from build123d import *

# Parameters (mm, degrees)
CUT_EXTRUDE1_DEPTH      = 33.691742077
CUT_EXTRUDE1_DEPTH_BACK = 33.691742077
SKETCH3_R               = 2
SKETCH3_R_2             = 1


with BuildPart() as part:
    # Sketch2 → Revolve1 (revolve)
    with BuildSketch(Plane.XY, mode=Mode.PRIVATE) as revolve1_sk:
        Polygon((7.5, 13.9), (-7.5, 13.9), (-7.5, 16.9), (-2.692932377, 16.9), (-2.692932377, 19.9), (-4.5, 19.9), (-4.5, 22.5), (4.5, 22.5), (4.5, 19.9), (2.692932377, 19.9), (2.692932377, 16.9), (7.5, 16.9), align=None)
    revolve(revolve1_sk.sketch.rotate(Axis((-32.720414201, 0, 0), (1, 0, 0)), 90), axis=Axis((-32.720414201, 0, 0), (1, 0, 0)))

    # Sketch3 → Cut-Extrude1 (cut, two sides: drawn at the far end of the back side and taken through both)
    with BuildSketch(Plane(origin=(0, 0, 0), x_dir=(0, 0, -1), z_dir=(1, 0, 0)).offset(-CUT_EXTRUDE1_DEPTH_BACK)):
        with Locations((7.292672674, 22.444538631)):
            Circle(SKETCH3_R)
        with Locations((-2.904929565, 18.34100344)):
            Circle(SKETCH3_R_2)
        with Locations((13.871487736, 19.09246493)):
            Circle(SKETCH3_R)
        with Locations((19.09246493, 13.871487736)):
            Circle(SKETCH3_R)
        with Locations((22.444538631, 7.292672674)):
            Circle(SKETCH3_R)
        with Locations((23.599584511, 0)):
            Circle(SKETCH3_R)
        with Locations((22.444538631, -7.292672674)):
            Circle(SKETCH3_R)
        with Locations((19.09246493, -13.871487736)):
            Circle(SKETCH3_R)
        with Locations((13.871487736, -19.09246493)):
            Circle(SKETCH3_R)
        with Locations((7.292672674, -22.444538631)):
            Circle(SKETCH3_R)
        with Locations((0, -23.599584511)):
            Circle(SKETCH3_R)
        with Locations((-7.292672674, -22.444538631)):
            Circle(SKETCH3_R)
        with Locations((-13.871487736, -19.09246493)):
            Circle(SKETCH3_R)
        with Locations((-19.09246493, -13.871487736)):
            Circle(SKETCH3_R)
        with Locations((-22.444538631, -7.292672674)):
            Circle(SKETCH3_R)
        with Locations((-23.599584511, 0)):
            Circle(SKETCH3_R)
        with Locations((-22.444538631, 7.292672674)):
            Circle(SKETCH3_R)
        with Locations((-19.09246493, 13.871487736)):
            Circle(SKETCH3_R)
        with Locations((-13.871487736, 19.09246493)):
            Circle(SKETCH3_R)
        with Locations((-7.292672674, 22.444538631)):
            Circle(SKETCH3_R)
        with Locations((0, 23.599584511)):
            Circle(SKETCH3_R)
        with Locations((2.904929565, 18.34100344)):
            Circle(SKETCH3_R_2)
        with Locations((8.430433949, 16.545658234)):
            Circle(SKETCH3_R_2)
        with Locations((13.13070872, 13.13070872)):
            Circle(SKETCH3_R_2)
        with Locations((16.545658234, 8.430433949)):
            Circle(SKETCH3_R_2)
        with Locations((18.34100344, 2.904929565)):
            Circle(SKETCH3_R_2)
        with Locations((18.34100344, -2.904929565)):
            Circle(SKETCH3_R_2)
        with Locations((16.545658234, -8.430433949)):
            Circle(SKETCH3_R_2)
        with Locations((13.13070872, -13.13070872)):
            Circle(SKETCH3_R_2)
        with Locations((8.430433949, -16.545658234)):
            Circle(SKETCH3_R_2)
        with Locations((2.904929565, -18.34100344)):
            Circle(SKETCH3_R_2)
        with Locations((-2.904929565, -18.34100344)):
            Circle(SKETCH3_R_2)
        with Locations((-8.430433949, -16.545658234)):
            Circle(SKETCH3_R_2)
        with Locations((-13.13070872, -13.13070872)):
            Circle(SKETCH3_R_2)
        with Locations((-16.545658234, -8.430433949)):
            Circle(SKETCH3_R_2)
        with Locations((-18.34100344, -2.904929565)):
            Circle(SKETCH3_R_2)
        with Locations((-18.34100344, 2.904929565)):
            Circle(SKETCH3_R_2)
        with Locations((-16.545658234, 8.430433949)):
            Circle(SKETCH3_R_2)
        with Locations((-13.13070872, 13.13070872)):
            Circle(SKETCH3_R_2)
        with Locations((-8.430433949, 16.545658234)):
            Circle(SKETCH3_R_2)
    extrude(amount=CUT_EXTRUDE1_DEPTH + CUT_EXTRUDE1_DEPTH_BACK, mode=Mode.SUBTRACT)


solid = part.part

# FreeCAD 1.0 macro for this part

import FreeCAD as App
import Part
import Sketcher
from FreeCAD import Vector


def add_polygon(sketch, points):
    """Adds a closed chain of lines whose ends are joined by coincident constraints."""
    first, n = sketch.GeometryCount, len(points)
    for a, b in zip(points, points[1:] + points[:1]):
        sketch.addGeometry(Part.LineSegment(App.Vector(*a, 0), App.Vector(*b, 0)), False)
    for i in range(n):
        sketch.addConstraint(Sketcher.Constraint("Coincident", first + i, 2, first + (i + 1) % n, 1))

doc = App.newDocument("Part")
params = doc.addObject("Spreadsheet::Sheet", "Params")
for row, (alias, value) in enumerate([
    ("sketch1_width", "15 mm"),
    ("sketch1_width2", "9 mm"),
    ("sketch1_height", "3 mm"),
    ("sketch1_height2", "2.6 mm"),
    ("revolution_angle", "360 deg"),
    ("sketch2_diameter", "4 mm"),
    ("sketch2_diameter2", "2 mm"),
], start=1):
    params.set(f"A{row}", alias)
    params.set(f"B{row}", "=" + value)
    params.setAlias(f"B{row}", alias)

body = doc.addObject("PartDesign::Body", "Body")

sketch1 = doc.addObject("Sketcher::SketchObject", "Sketch")
body.addObject(sketch1)
sketch1.AttachmentSupport = (doc.XY_Plane, [""])
sketch1.MapMode = "FlatFace"
add_polygon(sketch1, [(-7.5, 13.9), (7.5, 13.9), (7.5, 16.9), (2.7, 16.9), (2.7, 19.9), (4.5, 19.9), (4.5, 22.5), (-4.5, 22.5), (-4.5, 19.9), (-2.7, 19.9), (-2.7, 16.9), (-7.5, 16.9)])
sketch1.addConstraint([
    Sketcher.Constraint("Horizontal", 0),
    Sketcher.Constraint("Vertical", 1),
    Sketcher.Constraint("Horizontal", 2),
    Sketcher.Constraint("Vertical", 3),
    Sketcher.Constraint("Horizontal", 4),
    Sketcher.Constraint("Vertical", 5),
    Sketcher.Constraint("Horizontal", 6),
    Sketcher.Constraint("Vertical", 7),
    Sketcher.Constraint("Horizontal", 8),
    Sketcher.Constraint("Vertical", 9),
    Sketcher.Constraint("Horizontal", 10),
    Sketcher.Constraint("Vertical", 11),
    Sketcher.Constraint("Symmetric", 4, 2, 7, 2, -2),
    Sketcher.Constraint("Symmetric", 2, 2, 9, 2, -2),
    Sketcher.Constraint("Equal", 2, 10),
    Sketcher.Constraint("Equal", 1, 3),
    Sketcher.Constraint("DistanceX", 0, 1, 0, 2, 15.0),
    Sketcher.Constraint("DistanceX", 6, 2, 6, 1, 9.0),
    Sketcher.Constraint("DistanceY", 1, 1, 1, 2, 3.0),
    Sketcher.Constraint("DistanceY", 5, 1, 5, 2, 2.6),
    Sketcher.Constraint("DistanceY", -1, 1, 0, 2, 13.9),
    Sketcher.Constraint("DistanceX", 2, 2, 2, 1, 4.807068),
])
sketch1.setExpression("Constraints[28]", "Params.sketch1_width")
sketch1.setExpression("Constraints[29]", "Params.sketch1_width2")
sketch1.setExpression("Constraints[30]", "Params.sketch1_height")
sketch1.setExpression("Constraints[31]", "Params.sketch1_height2")
revolution = doc.addObject("PartDesign::Revolution", "Revolution")
body.addObject(revolution)
revolution.Profile = sketch1
revolution.ReferenceAxis = (sketch1, ["H_Axis"])
revolution.setExpression("Angle", "Params.revolution_angle")

sketch2 = doc.addObject("Sketcher::SketchObject", "Sketch001")
body.addObject(sketch2)
sketch2.AttachmentSupport = (doc.YZ_Plane, [""])
sketch2.MapMode = "FlatFace"
sketch2.addGeometry([
    Part.Circle(Vector(22.4, -7.3, 0), Vector(0, 0, 1), 2),
    Part.Circle(Vector(18.3, 2.9, 0), Vector(0, 0, 1), 1),
    Part.Circle(Vector(19.1, -13.9, 0), Vector(0, 0, 1), 2),
    Part.Circle(Vector(13.9, -19.1, 0), Vector(0, 0, 1), 2),
    Part.Circle(Vector(7.3, -22.4, 0), Vector(0, 0, 1), 2),
    Part.Circle(Vector(0, -23.6, 0), Vector(0, 0, 1), 2),
    Part.Circle(Vector(-7.3, -22.4, 0), Vector(0, 0, 1), 2),
    Part.Circle(Vector(-13.9, -19.1, 0), Vector(0, 0, 1), 2),
    Part.Circle(Vector(-19.1, -13.9, 0), Vector(0, 0, 1), 2),
    Part.Circle(Vector(-22.4, -7.3, 0), Vector(0, 0, 1), 2),
    Part.Circle(Vector(-23.6, 0, 0), Vector(0, 0, 1), 2),
    Part.Circle(Vector(-22.4, 7.3, 0), Vector(0, 0, 1), 2),
    Part.Circle(Vector(-19.1, 13.9, 0), Vector(0, 0, 1), 2),
    Part.Circle(Vector(-13.9, 19.1, 0), Vector(0, 0, 1), 2),
    Part.Circle(Vector(-7.3, 22.4, 0), Vector(0, 0, 1), 2),
    Part.Circle(Vector(0, 23.6, 0), Vector(0, 0, 1), 2),
    Part.Circle(Vector(7.3, 22.4, 0), Vector(0, 0, 1), 2),
    Part.Circle(Vector(13.9, 19.1, 0), Vector(0, 0, 1), 2),
    Part.Circle(Vector(19.1, 13.9, 0), Vector(0, 0, 1), 2),
    Part.Circle(Vector(22.4, 7.3, 0), Vector(0, 0, 1), 2),
    Part.Circle(Vector(23.6, 0, 0), Vector(0, 0, 1), 2),
    Part.Circle(Vector(18.3, -2.9, 0), Vector(0, 0, 1), 1),
    Part.Circle(Vector(16.5, -8.4, 0), Vector(0, 0, 1), 1),
    Part.Circle(Vector(13.1, -13.1, 0), Vector(0, 0, 1), 1),
    Part.Circle(Vector(8.4, -16.5, 0), Vector(0, 0, 1), 1),
    Part.Circle(Vector(2.9, -18.3, 0), Vector(0, 0, 1), 1),
    Part.Circle(Vector(-2.9, -18.3, 0), Vector(0, 0, 1), 1),
    Part.Circle(Vector(-8.4, -16.5, 0), Vector(0, 0, 1), 1),
    Part.Circle(Vector(-13.1, -13.1, 0), Vector(0, 0, 1), 1),
    Part.Circle(Vector(-16.5, -8.4, 0), Vector(0, 0, 1), 1),
    Part.Circle(Vector(-18.3, -2.9, 0), Vector(0, 0, 1), 1),
    Part.Circle(Vector(-18.3, 2.9, 0), Vector(0, 0, 1), 1),
    Part.Circle(Vector(-16.5, 8.4, 0), Vector(0, 0, 1), 1),
    Part.Circle(Vector(-13.1, 13.1, 0), Vector(0, 0, 1), 1),
    Part.Circle(Vector(-8.4, 16.5, 0), Vector(0, 0, 1), 1),
    Part.Circle(Vector(-2.9, 18.3, 0), Vector(0, 0, 1), 1),
    Part.Circle(Vector(2.9, 18.3, 0), Vector(0, 0, 1), 1),
    Part.Circle(Vector(8.4, 16.5, 0), Vector(0, 0, 1), 1),
    Part.Circle(Vector(13.1, 13.1, 0), Vector(0, 0, 1), 1),
    Part.Circle(Vector(16.5, 8.4, 0), Vector(0, 0, 1), 1),
], False)
sketch2.addConstraint([
    Sketcher.Constraint("Equal", 0, 2),
    Sketcher.Constraint("Equal", 2, 3),
    Sketcher.Constraint("Equal", 3, 4),
    Sketcher.Constraint("Equal", 4, 5),
    Sketcher.Constraint("Equal", 5, 6),
    Sketcher.Constraint("Equal", 6, 7),
    Sketcher.Constraint("Equal", 7, 8),
    Sketcher.Constraint("Equal", 8, 9),
    Sketcher.Constraint("Equal", 9, 10),
    Sketcher.Constraint("Equal", 10, 11),
    Sketcher.Constraint("Equal", 11, 12),
    Sketcher.Constraint("Equal", 12, 13),
    Sketcher.Constraint("Equal", 13, 14),
    Sketcher.Constraint("Equal", 14, 15),
    Sketcher.Constraint("Equal", 15, 16),
    Sketcher.Constraint("Equal", 16, 17),
    Sketcher.Constraint("Equal", 17, 18),
    Sketcher.Constraint("Equal", 18, 19),
    Sketcher.Constraint("Equal", 19, 20),
    Sketcher.Constraint("Equal", 1, 21),
    Sketcher.Constraint("Equal", 21, 22),
    Sketcher.Constraint("Equal", 22, 23),
    Sketcher.Constraint("Equal", 23, 24),
    Sketcher.Constraint("Equal", 24, 25),
    Sketcher.Constraint("Equal", 25, 26),
    Sketcher.Constraint("Equal", 26, 27),
    Sketcher.Constraint("Equal", 27, 28),
    Sketcher.Constraint("Equal", 28, 29),
    Sketcher.Constraint("Equal", 29, 30),
    Sketcher.Constraint("Equal", 30, 31),
    Sketcher.Constraint("Equal", 31, 32),
    Sketcher.Constraint("Equal", 32, 33),
    Sketcher.Constraint("Equal", 33, 34),
    Sketcher.Constraint("Equal", 34, 35),
    Sketcher.Constraint("Equal", 35, 36),
    Sketcher.Constraint("Equal", 36, 37),
    Sketcher.Constraint("Equal", 37, 38),
    Sketcher.Constraint("Equal", 38, 39),
    Sketcher.Constraint("Symmetric", 0, 3, 11, 3, -1, 1),
    Sketcher.Constraint("Symmetric", 2, 3, 12, 3, -1, 1),
    Sketcher.Constraint("Symmetric", 3, 3, 13, 3, -1, 1),
    Sketcher.Constraint("Symmetric", 4, 3, 14, 3, -1, 1),
    Sketcher.Constraint("Symmetric", 5, 3, 15, 3, -1, 1),
    Sketcher.Constraint("Symmetric", 6, 3, 16, 3, -1, 1),
    Sketcher.Constraint("Symmetric", 7, 3, 17, 3, -1, 1),
    Sketcher.Constraint("Symmetric", 8, 3, 18, 3, -1, 1),
    Sketcher.Constraint("Symmetric", 9, 3, 19, 3, -1, 1),
    Sketcher.Constraint("Symmetric", 10, 3, 20, 3, -1, 1),
    Sketcher.Constraint("Symmetric", 1, 3, 30, 3, -1, 1),
    Sketcher.Constraint("Symmetric", 21, 3, 31, 3, -1, 1),
    Sketcher.Constraint("Symmetric", 22, 3, 32, 3, -1, 1),
    Sketcher.Constraint("Symmetric", 23, 3, 33, 3, -1, 1),
    Sketcher.Constraint("Symmetric", 24, 3, 34, 3, -1, 1),
    Sketcher.Constraint("Symmetric", 25, 3, 35, 3, -1, 1),
    Sketcher.Constraint("Symmetric", 26, 3, 36, 3, -1, 1),
    Sketcher.Constraint("Symmetric", 27, 3, 37, 3, -1, 1),
    Sketcher.Constraint("Symmetric", 28, 3, 38, 3, -1, 1),
    Sketcher.Constraint("Symmetric", 29, 3, 39, 3, -1, 1),
    Sketcher.Constraint("Symmetric", 4, 3, 6, 3, -2),
    Sketcher.Constraint("Symmetric", 3, 3, 7, 3, -2),
    Sketcher.Constraint("Symmetric", 2, 3, 8, 3, -2),
    Sketcher.Constraint("Symmetric", 0, 3, 9, 3, -2),
    Sketcher.Constraint("Symmetric", 25, 3, 26, 3, -2),
    Sketcher.Constraint("Symmetric", 24, 3, 27, 3, -2),
    Sketcher.Constraint("Symmetric", 23, 3, 28, 3, -2),
    Sketcher.Constraint("Symmetric", 22, 3, 29, 3, -2),
    Sketcher.Constraint("Symmetric", 21, 3, 30, 3, -2),
    Sketcher.Constraint("PointOnObject", 5, 3, -2),
    Sketcher.Constraint("PointOnObject", 10, 3, -1),
    Sketcher.Constraint("Diameter", 0, 4.0),
    Sketcher.Constraint("Diameter", 1, 2.0),
    Sketcher.Constraint("DistanceX", -1, 1, 0, 3, 22.444539),
    Sketcher.Constraint("DistanceY", -1, 1, 1, 3, 2.90493),
    Sketcher.Constraint("DistanceY", 4, 3, -1, 1, 22.444539),
    Sketcher.Constraint("DistanceX", -1, 1, 22, 3, 16.545658),
    Sketcher.Constraint("DistanceX", -1, 1, 23, 3, 13.130709),
    Sketcher.Constraint("DistanceY", 23, 3, -1, 1, 13.130709),
    Sketcher.Constraint("DistanceY", 24, 3, -1, 1, 16.545658),
    Sketcher.Constraint("DistanceX", -1, 1, 25, 3, 2.90493),
    Sketcher.Constraint("DistanceX", 1, 3, 2, 3, 0.751461),
    Sketcher.Constraint("DistanceX", 3, 3, 0, 3, 8.573051),
    Sketcher.Constraint("DistanceY", 4, 3, 2, 3, 8.573051),
    Sketcher.Constraint("DistanceX", 4, 3, 1, 3, 11.048331),
    Sketcher.Constraint("DistanceY", 5, 3, 3, 3, 4.50712),
    Sketcher.Constraint("DistanceY", 5, 3, 0, 3, 16.306912),
    Sketcher.Constraint("DistanceX", 6, 3, 3, 3, 21.16416),
    Sketcher.Constraint("DistanceX", 10, 3, 8, 3, 4.50712),
    Sketcher.Constraint("DistanceY", 8, 3, 11, 3, 21.16416),
    Sketcher.Constraint("DistanceY", 22, 3, 0, 3, 1.137761),
    Sketcher.Constraint("DistanceX", 4, 3, 24, 3, 1.137761),
    Sketcher.Constraint("DistanceY", 5, 3, 25, 3, 5.258581),
])
sketch2.setExpression("Constraints[69]", "Params.sketch2_diameter")
sketch2.setExpression("Constraints[70]", "Params.sketch2_diameter2")
pocket1 = doc.addObject("PartDesign::Pocket", "Pocket")
body.addObject(pocket1)
pocket1.Profile = sketch2
pocket1.Type = "ThroughAll"
pocket1.Midplane = True

doc.recompute()
